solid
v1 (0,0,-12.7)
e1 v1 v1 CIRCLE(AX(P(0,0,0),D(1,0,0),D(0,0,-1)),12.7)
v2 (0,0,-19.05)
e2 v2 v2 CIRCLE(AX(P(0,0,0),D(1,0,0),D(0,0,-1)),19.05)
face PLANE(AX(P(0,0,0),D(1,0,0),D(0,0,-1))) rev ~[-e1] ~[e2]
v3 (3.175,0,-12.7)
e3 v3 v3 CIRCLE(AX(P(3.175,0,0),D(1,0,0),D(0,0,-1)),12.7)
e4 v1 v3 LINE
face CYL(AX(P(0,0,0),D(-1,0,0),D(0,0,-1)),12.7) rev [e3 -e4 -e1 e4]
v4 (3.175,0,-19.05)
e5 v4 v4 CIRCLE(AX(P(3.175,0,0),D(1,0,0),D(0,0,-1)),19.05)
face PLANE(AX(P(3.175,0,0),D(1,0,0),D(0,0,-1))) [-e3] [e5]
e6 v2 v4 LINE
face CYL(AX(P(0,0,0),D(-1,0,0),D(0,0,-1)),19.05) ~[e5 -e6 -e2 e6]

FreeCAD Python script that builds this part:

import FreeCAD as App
import Part
import Sketcher
Q = App.Units.Quantity

doc = App.newDocument("Part")
body = doc.addObject("PartDesign::Body", "Body")

# Sketch on YZ plane
sketch1 = body.newObject("Sketcher::SketchObject", "Sketch")
sketch1.AttachmentSupport = (doc.getObject("YZ_Plane"), [""])
sketch1.MapMode = "FlatFace"
sketch1.addGeometry(Part.Circle(App.Vector(0, 0, 0), App.Vector(0, 0, 1), 19), False)
sketch1.addGeometry(Part.Circle(App.Vector(0, 0, 0), App.Vector(0, 0, 1), 13), False)
sketch1.addConstraint(Sketcher.Constraint("Coincident", 0, 3, -1, 1))
sketch1.addConstraint(Sketcher.Constraint("Coincident", 1, 3, -1, 1))
sketch1.addConstraint(Sketcher.Constraint("Diameter", 1, Q("1 in")))
sketch1.addConstraint(Sketcher.Constraint("Diameter", 0, Q("1.5 in")))
pad1 = body.newObject("PartDesign::Pad", "Pad")
pad1.Profile = sketch1
pad1.Length = Q("0.125 in")

doc.recompute()
